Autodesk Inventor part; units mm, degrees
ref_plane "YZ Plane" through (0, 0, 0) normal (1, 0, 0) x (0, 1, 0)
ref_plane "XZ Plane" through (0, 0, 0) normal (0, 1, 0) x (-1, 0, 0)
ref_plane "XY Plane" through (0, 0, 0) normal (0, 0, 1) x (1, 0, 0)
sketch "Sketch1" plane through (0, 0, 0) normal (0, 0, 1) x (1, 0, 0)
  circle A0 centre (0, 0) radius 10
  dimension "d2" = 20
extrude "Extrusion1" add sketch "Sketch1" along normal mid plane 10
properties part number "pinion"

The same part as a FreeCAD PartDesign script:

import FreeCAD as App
import Part
import Sketcher
Q = App.Units.Quantity

doc = App.newDocument("Part")
body = doc.addObject("PartDesign::Body", "Body")

# Sketch on XY plane
sketch1 = body.newObject("Sketcher::SketchObject", "Sketch")
sketch1.AttachmentSupport = (doc.getObject("XY_Plane"), [""])
sketch1.MapMode = "FlatFace"
sketch1.addGeometry(Part.Circle(App.Vector(0, 0, 0), App.Vector(0, 0, 1), 10), False)
sketch1.addConstraint(Sketcher.Constraint("Coincident", 0, 3, -1, 1))
sketch1.addConstraint(Sketcher.Constraint("Diameter", 0, Q("20 mm")))
pad1 = body.newObject("PartDesign::Pad", "Pad")
pad1.Profile = sketch1
pad1.Length = 10
pad1.Midplane = True

doc.recompute()
